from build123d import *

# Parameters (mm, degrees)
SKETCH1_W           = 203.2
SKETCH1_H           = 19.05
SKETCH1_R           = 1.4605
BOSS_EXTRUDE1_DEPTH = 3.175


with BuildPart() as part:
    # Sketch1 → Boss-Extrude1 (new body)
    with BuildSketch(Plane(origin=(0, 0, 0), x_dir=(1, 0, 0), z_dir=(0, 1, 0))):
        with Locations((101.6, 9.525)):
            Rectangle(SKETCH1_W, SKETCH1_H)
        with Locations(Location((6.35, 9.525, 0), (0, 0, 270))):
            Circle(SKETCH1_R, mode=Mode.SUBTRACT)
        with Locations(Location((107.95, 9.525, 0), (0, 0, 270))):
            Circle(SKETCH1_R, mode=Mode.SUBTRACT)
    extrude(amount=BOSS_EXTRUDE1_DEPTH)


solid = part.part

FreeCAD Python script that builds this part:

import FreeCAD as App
import Part
import Sketcher
from FreeCAD import Vector
Q = App.Units.Quantity


def add_polygon(sketch, points):
    """Adds a closed chain of lines whose ends are joined by coincident constraints."""
    first, n = sketch.GeometryCount, len(points)
    for a, b in zip(points, points[1:] + points[:1]):
        sketch.addGeometry(Part.LineSegment(App.Vector(*a, 0), App.Vector(*b, 0)), False)
    for i in range(n):
        sketch.addConstraint(Sketcher.Constraint("Coincident", first + i, 2, first + (i + 1) % n, 1))

doc = App.newDocument("Part")
params = doc.addObject("Spreadsheet::Sheet", "Params")
for row, (alias, value) in enumerate([
    ("sketch1_width", "8 in"),
    ("sketch1_diameter", "0.115 in"),
    ("sketch1_height", "0.75 in"),
    ("pad1_length", "0.125 in"),
], start=1):
    params.set(f"A{row}", alias)
    params.set(f"B{row}", "=" + value)
    params.setAlias(f"B{row}", alias)

body = doc.addObject("PartDesign::Body", "Body")

sketch1 = doc.addObject("Sketcher::SketchObject", "Sketch")
body.addObject(sketch1)
sketch1.AttachmentSupport = (doc.XZ_Plane, [""])
sketch1.MapMode = "FlatFace"
add_polygon(sketch1, [(0, -19.1), (0, 0), (203.2, 0), (203.2, -19.1)])
sketch1.addGeometry(Part.Circle(Vector(6.3, -9.5, 0), Vector(0, 0, 1), 1.5), False)
sketch1.addGeometry(Part.Circle(Vector(108, -9.5, 0), Vector(0, 0, 1), 1.5), False)
sketch1.addConstraint(Sketcher.Constraint("Vertical", 0))
sketch1.addConstraint(Sketcher.Constraint("Horizontal", 1))
sketch1.addConstraint(Sketcher.Constraint("Vertical", 2))
sketch1.addConstraint(Sketcher.Constraint("Horizontal", 3))
sketch1.addConstraint(Sketcher.Constraint("Coincident", 0, 2, -1, 1))
sketch1.addConstraint(Sketcher.Constraint("Equal", 4, 5))
sketch1.addConstraint(Sketcher.Constraint("Horizontal", 4, 3, 5, 3))
sketch1.addConstraint(Sketcher.Constraint("DistanceX", 1, 1, 1, 2, Q("8 in")))
sketch1.addConstraint(Sketcher.Constraint("Diameter", 4, Q("0.115 in")))
sketch1.addConstraint(Sketcher.Constraint("DistanceX", 4, 3, 5, 3, Q("4 in")))
sketch1.addConstraint(Sketcher.Constraint("DistanceY", 0, 1, 0, 2, Q("0.75 in")))
sketch1.addConstraint(Sketcher.Constraint("DistanceX", -1, 1, 4, 3, Q("0.25 in")))
sketch1.addConstraint(Sketcher.Constraint("DistanceY", 4, 3, -1, 1, Q("0.375 in")))
sketch1.setExpression("Constraints[11]", "Params.sketch1_width")
sketch1.setExpression("Constraints[12]", "Params.sketch1_diameter")
sketch1.setExpression("Constraints[14]", "Params.sketch1_height")
pad1 = doc.addObject("PartDesign::Pad", "Pad")
body.addObject(pad1)
pad1.Profile = sketch1
pad1.setExpression("Length", "Params.pad1_length")
pad1.Reversed = True

doc.recompute()
